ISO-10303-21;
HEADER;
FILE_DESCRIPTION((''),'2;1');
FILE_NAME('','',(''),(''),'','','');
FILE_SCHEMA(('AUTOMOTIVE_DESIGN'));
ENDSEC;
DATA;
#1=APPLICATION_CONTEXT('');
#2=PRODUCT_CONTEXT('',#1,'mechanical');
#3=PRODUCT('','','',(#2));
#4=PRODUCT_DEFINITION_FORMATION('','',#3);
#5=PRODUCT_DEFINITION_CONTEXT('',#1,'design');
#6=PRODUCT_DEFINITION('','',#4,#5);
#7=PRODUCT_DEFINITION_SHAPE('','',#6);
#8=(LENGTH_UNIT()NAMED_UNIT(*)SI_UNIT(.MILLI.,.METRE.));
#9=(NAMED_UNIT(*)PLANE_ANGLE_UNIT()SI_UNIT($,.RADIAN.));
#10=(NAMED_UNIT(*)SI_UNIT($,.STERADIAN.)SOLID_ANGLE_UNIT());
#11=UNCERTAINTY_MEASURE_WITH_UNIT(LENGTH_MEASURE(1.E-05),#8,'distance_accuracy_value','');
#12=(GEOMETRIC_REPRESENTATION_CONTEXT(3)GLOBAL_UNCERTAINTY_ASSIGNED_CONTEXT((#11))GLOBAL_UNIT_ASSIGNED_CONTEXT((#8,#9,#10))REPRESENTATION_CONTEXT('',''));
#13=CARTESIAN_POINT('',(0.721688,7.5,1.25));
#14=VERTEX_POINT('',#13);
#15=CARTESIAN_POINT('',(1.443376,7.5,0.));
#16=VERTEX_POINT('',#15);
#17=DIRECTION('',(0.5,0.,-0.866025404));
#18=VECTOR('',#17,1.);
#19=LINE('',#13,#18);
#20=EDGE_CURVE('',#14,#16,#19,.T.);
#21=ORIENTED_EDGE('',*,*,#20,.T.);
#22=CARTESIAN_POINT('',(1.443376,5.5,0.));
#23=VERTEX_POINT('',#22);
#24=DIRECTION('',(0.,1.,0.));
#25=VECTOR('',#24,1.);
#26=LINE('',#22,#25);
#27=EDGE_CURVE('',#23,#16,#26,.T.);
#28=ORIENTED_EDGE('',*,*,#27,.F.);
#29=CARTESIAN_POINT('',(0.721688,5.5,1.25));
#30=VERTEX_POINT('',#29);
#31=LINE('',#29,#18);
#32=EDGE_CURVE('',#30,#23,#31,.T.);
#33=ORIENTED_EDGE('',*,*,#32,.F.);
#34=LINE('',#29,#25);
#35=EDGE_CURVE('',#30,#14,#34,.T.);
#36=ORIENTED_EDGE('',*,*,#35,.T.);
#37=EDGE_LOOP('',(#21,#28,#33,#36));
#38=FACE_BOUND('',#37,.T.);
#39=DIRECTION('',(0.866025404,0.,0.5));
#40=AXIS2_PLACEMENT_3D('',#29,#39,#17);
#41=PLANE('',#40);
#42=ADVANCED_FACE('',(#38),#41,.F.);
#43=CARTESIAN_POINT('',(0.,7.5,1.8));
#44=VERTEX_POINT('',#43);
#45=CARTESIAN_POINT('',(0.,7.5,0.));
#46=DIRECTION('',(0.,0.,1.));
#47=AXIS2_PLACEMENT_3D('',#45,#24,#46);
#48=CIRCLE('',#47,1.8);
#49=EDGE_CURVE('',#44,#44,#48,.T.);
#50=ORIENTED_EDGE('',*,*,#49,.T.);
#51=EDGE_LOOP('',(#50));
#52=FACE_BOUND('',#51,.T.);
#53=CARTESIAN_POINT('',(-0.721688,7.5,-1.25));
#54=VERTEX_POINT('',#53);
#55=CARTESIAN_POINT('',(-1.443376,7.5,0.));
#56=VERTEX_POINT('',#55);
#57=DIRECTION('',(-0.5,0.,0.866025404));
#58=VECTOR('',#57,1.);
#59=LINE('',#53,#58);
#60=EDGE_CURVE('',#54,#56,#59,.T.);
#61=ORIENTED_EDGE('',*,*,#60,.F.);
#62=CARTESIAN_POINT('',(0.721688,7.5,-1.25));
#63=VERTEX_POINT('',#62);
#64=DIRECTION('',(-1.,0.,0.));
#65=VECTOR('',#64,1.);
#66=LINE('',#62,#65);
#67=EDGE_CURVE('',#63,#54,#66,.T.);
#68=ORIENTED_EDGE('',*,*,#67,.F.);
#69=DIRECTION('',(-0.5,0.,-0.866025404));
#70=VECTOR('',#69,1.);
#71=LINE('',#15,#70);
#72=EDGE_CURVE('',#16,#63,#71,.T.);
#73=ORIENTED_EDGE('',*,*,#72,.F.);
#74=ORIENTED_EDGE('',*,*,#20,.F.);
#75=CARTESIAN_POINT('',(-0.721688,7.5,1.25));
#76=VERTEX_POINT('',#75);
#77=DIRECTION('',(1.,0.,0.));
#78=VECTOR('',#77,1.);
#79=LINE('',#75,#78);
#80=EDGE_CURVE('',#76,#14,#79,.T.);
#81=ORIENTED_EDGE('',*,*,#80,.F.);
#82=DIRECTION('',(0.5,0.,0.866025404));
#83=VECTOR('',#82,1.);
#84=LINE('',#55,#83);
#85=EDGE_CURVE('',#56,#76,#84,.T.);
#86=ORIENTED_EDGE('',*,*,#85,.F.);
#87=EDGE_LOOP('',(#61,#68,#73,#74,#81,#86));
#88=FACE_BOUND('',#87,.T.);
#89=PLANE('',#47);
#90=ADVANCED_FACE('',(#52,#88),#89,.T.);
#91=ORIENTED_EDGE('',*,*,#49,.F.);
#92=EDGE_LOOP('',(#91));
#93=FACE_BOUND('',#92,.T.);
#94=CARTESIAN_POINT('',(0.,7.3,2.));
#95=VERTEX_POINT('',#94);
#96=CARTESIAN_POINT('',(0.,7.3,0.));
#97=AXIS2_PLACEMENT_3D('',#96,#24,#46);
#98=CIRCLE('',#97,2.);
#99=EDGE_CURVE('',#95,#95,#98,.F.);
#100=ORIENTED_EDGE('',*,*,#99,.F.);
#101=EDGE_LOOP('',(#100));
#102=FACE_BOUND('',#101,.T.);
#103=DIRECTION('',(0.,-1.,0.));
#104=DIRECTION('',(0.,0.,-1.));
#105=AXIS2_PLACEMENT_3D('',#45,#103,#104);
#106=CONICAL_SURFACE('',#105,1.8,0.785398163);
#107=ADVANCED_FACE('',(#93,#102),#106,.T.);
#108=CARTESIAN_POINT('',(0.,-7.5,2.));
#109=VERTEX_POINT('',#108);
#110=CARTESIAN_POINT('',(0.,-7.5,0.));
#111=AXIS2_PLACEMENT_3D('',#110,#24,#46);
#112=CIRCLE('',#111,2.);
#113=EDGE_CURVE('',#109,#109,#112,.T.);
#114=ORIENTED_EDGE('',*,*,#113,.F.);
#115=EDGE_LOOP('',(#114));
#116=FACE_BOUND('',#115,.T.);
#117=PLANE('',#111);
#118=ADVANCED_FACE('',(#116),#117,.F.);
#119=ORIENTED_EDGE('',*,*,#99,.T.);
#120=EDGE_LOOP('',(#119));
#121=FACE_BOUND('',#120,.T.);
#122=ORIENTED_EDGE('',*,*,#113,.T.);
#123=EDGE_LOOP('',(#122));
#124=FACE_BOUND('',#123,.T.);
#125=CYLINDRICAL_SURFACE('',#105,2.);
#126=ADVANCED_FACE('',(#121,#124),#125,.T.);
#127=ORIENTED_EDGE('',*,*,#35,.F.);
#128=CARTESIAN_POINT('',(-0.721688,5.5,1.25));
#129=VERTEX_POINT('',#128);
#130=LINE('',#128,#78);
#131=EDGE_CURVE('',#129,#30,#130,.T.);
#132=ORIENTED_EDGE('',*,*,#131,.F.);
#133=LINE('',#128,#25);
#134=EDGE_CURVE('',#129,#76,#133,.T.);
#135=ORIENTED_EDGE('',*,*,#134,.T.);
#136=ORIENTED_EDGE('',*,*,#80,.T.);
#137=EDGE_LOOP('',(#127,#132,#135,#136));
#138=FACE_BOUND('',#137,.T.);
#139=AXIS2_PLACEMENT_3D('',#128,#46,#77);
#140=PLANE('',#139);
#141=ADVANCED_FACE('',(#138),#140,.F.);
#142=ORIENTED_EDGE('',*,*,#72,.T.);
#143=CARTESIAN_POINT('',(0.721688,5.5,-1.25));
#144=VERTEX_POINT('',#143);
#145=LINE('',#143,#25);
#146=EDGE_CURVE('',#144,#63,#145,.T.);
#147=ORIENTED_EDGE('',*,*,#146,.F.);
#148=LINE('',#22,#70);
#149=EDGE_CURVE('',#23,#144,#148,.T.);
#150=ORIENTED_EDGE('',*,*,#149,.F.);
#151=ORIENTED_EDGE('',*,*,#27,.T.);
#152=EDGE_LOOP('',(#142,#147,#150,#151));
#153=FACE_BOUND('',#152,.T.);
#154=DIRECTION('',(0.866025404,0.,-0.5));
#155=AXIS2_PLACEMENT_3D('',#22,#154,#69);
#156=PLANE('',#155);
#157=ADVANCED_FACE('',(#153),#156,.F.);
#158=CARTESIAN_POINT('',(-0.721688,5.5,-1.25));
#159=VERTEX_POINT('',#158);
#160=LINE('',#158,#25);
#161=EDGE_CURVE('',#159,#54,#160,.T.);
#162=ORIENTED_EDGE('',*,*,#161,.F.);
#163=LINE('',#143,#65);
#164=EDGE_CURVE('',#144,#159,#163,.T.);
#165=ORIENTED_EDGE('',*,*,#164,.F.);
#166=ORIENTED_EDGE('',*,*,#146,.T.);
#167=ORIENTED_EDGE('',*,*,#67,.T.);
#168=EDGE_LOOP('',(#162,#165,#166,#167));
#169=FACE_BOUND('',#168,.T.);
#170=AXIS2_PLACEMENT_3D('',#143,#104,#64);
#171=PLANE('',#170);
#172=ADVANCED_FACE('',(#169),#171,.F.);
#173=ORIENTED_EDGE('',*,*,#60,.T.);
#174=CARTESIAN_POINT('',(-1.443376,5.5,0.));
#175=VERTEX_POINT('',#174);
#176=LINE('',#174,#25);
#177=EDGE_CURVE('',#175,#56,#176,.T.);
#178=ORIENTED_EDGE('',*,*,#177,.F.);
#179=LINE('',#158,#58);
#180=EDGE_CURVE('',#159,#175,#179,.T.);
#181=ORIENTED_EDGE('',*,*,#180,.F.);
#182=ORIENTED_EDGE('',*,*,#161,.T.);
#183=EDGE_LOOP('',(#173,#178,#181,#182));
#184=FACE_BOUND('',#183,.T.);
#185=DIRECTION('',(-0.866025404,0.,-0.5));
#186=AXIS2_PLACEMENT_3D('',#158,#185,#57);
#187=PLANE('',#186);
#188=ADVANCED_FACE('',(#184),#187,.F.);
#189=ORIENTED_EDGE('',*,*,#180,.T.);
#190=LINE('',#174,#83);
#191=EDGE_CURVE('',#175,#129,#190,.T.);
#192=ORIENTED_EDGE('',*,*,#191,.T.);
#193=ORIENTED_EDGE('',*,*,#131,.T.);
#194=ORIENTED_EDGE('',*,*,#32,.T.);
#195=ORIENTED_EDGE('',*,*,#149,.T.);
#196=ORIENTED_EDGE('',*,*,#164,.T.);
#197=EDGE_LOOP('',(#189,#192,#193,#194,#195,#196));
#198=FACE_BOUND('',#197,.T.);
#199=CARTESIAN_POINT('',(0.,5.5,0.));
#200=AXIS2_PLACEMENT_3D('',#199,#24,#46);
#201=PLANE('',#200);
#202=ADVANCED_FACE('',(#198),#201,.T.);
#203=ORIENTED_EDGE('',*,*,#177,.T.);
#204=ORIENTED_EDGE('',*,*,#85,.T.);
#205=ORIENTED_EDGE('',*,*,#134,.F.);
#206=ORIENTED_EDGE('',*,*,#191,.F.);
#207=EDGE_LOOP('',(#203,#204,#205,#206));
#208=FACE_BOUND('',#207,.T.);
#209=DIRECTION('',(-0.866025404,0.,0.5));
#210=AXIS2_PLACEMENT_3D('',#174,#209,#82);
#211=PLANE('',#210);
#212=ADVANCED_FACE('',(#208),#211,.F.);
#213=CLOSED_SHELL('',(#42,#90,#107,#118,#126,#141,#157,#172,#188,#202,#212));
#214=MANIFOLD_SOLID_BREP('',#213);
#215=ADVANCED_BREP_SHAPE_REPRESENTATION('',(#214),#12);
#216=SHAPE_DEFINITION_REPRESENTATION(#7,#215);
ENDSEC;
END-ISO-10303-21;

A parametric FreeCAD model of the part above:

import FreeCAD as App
import Part
import Sketcher
from FreeCAD import Vector
Q = App.Units.Quantity


def edges_at(feature, points):
    """Names of the edges that pass closest to the given points."""
    edges = feature.Shape.Edges
    near = lambda p: min(range(len(edges)), key=lambda i: edges[i].distToShape(Part.Vertex(*p))[0])
    return sorted({f"Edge{near(p) + 1}" for p in points})


def add_polygon(sketch, points):
    """Adds a closed chain of lines whose ends are joined by coincident constraints."""
    first, n = sketch.GeometryCount, len(points)
    for a, b in zip(points, points[1:] + points[:1]):
        sketch.addGeometry(Part.LineSegment(App.Vector(*a, 0), App.Vector(*b, 0)), False)
    for i in range(n):
        sketch.addConstraint(Sketcher.Constraint("Coincident", first + i, 2, first + (i + 1) % n, 1))

doc = App.newDocument("Part")
body = doc.addObject("PartDesign::Body", "Body")

sketch1 = doc.addObject("Sketcher::SketchObject", "Sketch")
body.addObject(sketch1)
sketch1.AttachmentSupport = (doc.XZ_Plane, [""])
sketch1.MapMode = "FlatFace"
sketch1.addGeometry(Part.Circle(Vector(0, 0, 0), Vector(0, 0, 1), 2), False)
sketch1.addConstraint([
    Sketcher.Constraint("Coincident", 0, 3, -1, 1),
    Sketcher.Constraint("Diameter", 0, 4.0),
])
pad1 = doc.addObject("PartDesign::Pad", "Pad")
body.addObject(pad1)
pad1.Profile = sketch1
pad1.Length = 15
pad1.Midplane = True

sketch2 = doc.addObject("Sketcher::SketchObject", "Sketch001")
body.addObject(sketch2)
sketch2.AttachmentSupport = (doc.XZ_Plane, [""])
sketch2.MapMode = "FlatFace"
sketch2.AttachmentOffset = App.Placement(Vector(0, 0, -7.5), App.Rotation())
add_polygon(sketch2, [(0.7, -1.2), (-0.7, -1.2), (-1.4, 0), (-0.7, 1.2), (0.7, 1.2), (1.4, 0)])
sketch2.addConstraint([
    Sketcher.Constraint("Horizontal", 0),
    Sketcher.Constraint("Horizontal", 3),
    Sketcher.Constraint("Symmetric", 0, 2, 3, 2, -1, 1),
    Sketcher.Constraint("Symmetric", 1, 2, 4, 2, -1, 1),
    Sketcher.Constraint("PointOnObject", 1, 2, -1),
    Sketcher.Constraint("Parallel", 2, 5),
    Sketcher.Constraint("Vertical", 0, 2, 2, 2),
    Sketcher.Constraint("Angle", 1, Q("120 deg")),
    Sketcher.Constraint("DistanceY", 0, 2, 2, 2, 2.5),
    Sketcher.Constraint("DistanceX", 0, 2, 0, 1, 1.443376),
])
pocket1 = doc.addObject("PartDesign::Pocket", "Pocket")
body.addObject(pocket1)
pocket1.Profile = sketch2
pocket1.Length = 2
pocket1.Reversed = True
doc.recompute()

chamfer = doc.addObject("PartDesign::Chamfer", "Chamfer")
body.addObject(chamfer)
chamfer.Base = (pocket1, edges_at(pocket1, [(0, 7.5, -2)]))
chamfer.Size = 0.2

doc.recompute()
